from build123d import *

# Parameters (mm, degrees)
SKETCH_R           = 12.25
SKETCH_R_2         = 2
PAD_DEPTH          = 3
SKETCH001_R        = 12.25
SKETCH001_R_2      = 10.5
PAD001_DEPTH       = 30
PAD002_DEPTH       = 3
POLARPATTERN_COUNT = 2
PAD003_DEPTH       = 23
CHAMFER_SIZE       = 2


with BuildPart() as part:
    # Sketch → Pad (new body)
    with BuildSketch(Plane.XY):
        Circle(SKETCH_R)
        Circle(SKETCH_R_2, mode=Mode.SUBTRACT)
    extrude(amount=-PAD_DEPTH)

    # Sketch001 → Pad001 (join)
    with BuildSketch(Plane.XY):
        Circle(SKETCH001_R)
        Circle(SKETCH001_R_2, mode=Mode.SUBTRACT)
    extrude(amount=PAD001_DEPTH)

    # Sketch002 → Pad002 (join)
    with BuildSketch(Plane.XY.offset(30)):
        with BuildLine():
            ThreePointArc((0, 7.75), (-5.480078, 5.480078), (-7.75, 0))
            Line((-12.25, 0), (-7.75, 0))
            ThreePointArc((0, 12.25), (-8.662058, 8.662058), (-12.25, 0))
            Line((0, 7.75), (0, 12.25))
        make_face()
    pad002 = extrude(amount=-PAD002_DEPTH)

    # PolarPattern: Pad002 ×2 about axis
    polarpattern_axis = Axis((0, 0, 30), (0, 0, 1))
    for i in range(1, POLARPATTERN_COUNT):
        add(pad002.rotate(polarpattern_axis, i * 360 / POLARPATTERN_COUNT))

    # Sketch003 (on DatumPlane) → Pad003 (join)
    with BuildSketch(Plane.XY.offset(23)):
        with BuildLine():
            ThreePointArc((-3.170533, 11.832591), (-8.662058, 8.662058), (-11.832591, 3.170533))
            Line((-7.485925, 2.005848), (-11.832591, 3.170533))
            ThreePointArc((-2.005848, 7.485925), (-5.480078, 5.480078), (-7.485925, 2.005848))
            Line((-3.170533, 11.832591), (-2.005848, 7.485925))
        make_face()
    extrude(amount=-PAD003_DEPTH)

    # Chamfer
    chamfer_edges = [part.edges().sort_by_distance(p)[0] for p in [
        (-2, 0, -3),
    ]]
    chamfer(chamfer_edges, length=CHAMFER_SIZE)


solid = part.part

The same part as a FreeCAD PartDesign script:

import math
import FreeCAD as App
import Part
import Sketcher
Q = App.Units.Quantity


def edges_at(feature, points):
    """Names of the edges that pass closest to the given points."""
    edges = feature.Shape.Edges
    near = lambda p: min(range(len(edges)), key=lambda i: edges[i].distToShape(Part.Vertex(*p))[0])
    return sorted({f"Edge{near(p) + 1}" for p in points})

doc = App.newDocument("Part")
params = doc.addObject("Spreadsheet::Sheet", "Params")
for row, (alias, value) in enumerate([
    ("sketch1_diameter", "4 mm"),
    ("sketch1_diameter2", "24.5 mm"),
    ("pad1_length", "3 mm"),
    ("sketch2_diameter", "21 mm"),
    ("sketch2_diameter2", "24.5 mm"),
    ("pad2_length", "30 mm"),
    ("sketch3_radius", "7.749998 mm"),
    ("sketch3_radius2", "12.25 mm"),
    ("pad3_length", "3 mm"),
    ("sketch4_length", "4.5 mm"),
    ("pad4_length", "23 mm"),
    ("chamfer_size", "2 mm"),
], start=1):
    params.set(f"A{row}", alias)
    params.set(f"B{row}", "=" + value)
    params.setAlias(f"B{row}", alias)

body = doc.addObject("PartDesign::Body", "Body")

# Sketch on XY plane
sketch1 = body.newObject("Sketcher::SketchObject", "Sketch")
sketch1.AttachmentSupport = (doc.getObject("XY_Plane"), [""])
sketch1.MapMode = "FlatFace"
sketch1.addGeometry([
    Part.Circle(App.Vector(0, 0, 0), App.Vector(0, 0, 1), 12.2),
    Part.Circle(App.Vector(0, 0, 0), App.Vector(0, 0, 1), 2),
], False)
sketch1.addConstraint([
    Sketcher.Constraint("Coincident", 0, 3, -1, 1),
    Sketcher.Constraint("Coincident", 1, 3, -1, 1),
    Sketcher.Constraint("Diameter", 1, 4.0),
    Sketcher.Constraint("Diameter", 0, 24.5),
])
sketch1.setExpression("Constraints[2]", "Params.sketch1_diameter")
sketch1.setExpression("Constraints[3]", "Params.sketch1_diameter2")
pad1 = body.newObject("PartDesign::Pad", "Pad")
pad1.Profile = sketch1
pad1.setExpression("Length", "Params.pad1_length")
pad1.Reversed = True

# Sketch on XY plane
sketch2 = body.newObject("Sketcher::SketchObject", "Sketch001")
sketch2.AttachmentSupport = (doc.getObject("XY_Plane"), [""])
sketch2.MapMode = "FlatFace"
sketch2.addGeometry([
    Part.Circle(App.Vector(0, 0, 0), App.Vector(0, 0, 1), 12),
    Part.Circle(App.Vector(0, 0, 0), App.Vector(0, 0, 1), 10),
], False)
sketch2.addConstraint([
    Sketcher.Constraint("Coincident", 0, 3, -1, 1),
    Sketcher.Constraint("Coincident", 1, 3, -1, 1),
    Sketcher.Constraint("Diameter", 1, 21.0),
    Sketcher.Constraint("Diameter", 0, 24.5),
])
sketch2.setExpression("Constraints[2]", "Params.sketch2_diameter")
sketch2.setExpression("Constraints[3]", "Params.sketch2_diameter2")
pad2 = body.newObject("PartDesign::Pad", "Pad001")
pad2.Profile = sketch2
pad2.setExpression("Length", "Params.pad2_length")

# Sketch on XY plane
sketch3 = body.newObject("Sketcher::SketchObject", "Sketch002")
sketch3.AttachmentSupport = (doc.getObject("XY_Plane"), [""])
sketch3.MapMode = "FlatFace"
sketch3.AttachmentOffset = App.Placement(App.Vector(0, 0, 30), App.Rotation())
sketch3.addGeometry([
    Part.ArcOfCircle(Part.Circle(App.Vector(0, 0, 0), App.Vector(0, 0, 1), 7.7), math.radians(90), math.radians(180)),
    Part.LineSegment(App.Vector(0, 7.8, 0), App.Vector(0, 12.2, 0)),
    Part.ArcOfCircle(Part.Circle(App.Vector(0, 0, 0), App.Vector(0, 0, 1), 12.3), math.radians(90), math.radians(180)),
    Part.LineSegment(App.Vector(-12.2, 0, 0), App.Vector(-7.8, 0, 0)),
], False)
sketch3.addConstraint([
    Sketcher.Constraint("Coincident", 0, 1, 1, 1),
    Sketcher.Constraint("Coincident", 1, 2, 2, 1),
    Sketcher.Constraint("Coincident", 2, 2, 3, 1),
    Sketcher.Constraint("Coincident", 3, 2, 0, 2),
    Sketcher.Constraint("Vertical", 1),
    Sketcher.Constraint("Horizontal", 3),
    Sketcher.Constraint("Coincident", 0, 3, -1, 1),
    Sketcher.Constraint("Coincident", 2, 3, -1, 1),
    Sketcher.Constraint("PointOnObject", 0, 1, -2),
    Sketcher.Constraint("PointOnObject", 2, 2, -1),
    Sketcher.Constraint("Radius", 0, 7.749998),
    Sketcher.Constraint("Radius", 2, 12.25),
])
sketch3.setExpression("Constraints[10]", "Params.sketch3_radius")
sketch3.setExpression("Constraints[11]", "Params.sketch3_radius2")
pad3 = body.newObject("PartDesign::Pad", "Pad002")
pad3.Profile = sketch3
pad3.setExpression("Length", "Params.pad3_length")
pad3.Reversed = True
doc.recompute()

polarpattern = body.newObject("PartDesign::PolarPattern", "PolarPattern")
polarpattern.Originals = [pad3]
polarpattern.Axis = (doc.getObject("Z_Axis"), [""])
polarpattern.Angle = 360
polarpattern.Occurrences = 2
body.Tip = polarpattern

# Sketch on XY plane
sketch4 = body.newObject("Sketcher::SketchObject", "Sketch003")
sketch4.AttachmentSupport = (doc.getObject("XY_Plane"), [""])
sketch4.MapMode = "FlatFace"
sketch4.AttachmentOffset = App.Placement(App.Vector(0, 0, 23), App.Rotation())
sketch4.addGeometry([
    Part.ArcOfCircle(Part.Circle(App.Vector(0, 0, 0), App.Vector(0, 0, 1), 12.2), math.radians(105), math.radians(165)),
    Part.LineSegment(App.Vector(-11.8, 3.2, 0), App.Vector(-7.5, 2, 0)),
    Part.ArcOfCircle(Part.Circle(App.Vector(0, 0, 0), App.Vector(0, 0, 1), 7.7), math.radians(105), math.radians(165)),
    Part.LineSegment(App.Vector(-2, 7.5, 0), App.Vector(-3.2, 11.8, 0)),
], False)
sketch4.addConstraint([
    Sketcher.Constraint("Coincident", 0, 2, 1, 1),
    Sketcher.Constraint("Coincident", 1, 2, 2, 2),
    Sketcher.Constraint("Coincident", 2, 1, 3, 1),
    Sketcher.Constraint("Coincident", 3, 2, 0, 1),
    Sketcher.Constraint("Coincident", 0, 3, -1, 1),
    Sketcher.Constraint("Coincident", 2, 3, -1, 1),
    Sketcher.Constraint("Angle", 1, Q("-14.999992 deg")),
    Sketcher.Constraint("Angle", 3, Q("104.999992 deg")),
    Sketcher.Constraint("Distance", 1, 4.5),
    Sketcher.Constraint("Radius", 0, 12.249997),
    Sketcher.Constraint("DistanceX", 0, 2, -1, 1, 11.832591),
    Sketcher.Constraint("DistanceY", -1, 1, 3, 2, 11.832591),
])
sketch4.setExpression("Constraints[8]", "Params.sketch4_length")
pad4 = body.newObject("PartDesign::Pad", "Pad003")
pad4.Profile = sketch4
pad4.setExpression("Length", "Params.pad4_length")
pad4.Reversed = True
doc.recompute()

chamfer = body.newObject("PartDesign::Chamfer", "Chamfer")
chamfer.Base = (pad4, edges_at(pad4, [(-2, 0, -3)]))
chamfer.setExpression("Size", "Params.chamfer_size")

doc.recompute()
